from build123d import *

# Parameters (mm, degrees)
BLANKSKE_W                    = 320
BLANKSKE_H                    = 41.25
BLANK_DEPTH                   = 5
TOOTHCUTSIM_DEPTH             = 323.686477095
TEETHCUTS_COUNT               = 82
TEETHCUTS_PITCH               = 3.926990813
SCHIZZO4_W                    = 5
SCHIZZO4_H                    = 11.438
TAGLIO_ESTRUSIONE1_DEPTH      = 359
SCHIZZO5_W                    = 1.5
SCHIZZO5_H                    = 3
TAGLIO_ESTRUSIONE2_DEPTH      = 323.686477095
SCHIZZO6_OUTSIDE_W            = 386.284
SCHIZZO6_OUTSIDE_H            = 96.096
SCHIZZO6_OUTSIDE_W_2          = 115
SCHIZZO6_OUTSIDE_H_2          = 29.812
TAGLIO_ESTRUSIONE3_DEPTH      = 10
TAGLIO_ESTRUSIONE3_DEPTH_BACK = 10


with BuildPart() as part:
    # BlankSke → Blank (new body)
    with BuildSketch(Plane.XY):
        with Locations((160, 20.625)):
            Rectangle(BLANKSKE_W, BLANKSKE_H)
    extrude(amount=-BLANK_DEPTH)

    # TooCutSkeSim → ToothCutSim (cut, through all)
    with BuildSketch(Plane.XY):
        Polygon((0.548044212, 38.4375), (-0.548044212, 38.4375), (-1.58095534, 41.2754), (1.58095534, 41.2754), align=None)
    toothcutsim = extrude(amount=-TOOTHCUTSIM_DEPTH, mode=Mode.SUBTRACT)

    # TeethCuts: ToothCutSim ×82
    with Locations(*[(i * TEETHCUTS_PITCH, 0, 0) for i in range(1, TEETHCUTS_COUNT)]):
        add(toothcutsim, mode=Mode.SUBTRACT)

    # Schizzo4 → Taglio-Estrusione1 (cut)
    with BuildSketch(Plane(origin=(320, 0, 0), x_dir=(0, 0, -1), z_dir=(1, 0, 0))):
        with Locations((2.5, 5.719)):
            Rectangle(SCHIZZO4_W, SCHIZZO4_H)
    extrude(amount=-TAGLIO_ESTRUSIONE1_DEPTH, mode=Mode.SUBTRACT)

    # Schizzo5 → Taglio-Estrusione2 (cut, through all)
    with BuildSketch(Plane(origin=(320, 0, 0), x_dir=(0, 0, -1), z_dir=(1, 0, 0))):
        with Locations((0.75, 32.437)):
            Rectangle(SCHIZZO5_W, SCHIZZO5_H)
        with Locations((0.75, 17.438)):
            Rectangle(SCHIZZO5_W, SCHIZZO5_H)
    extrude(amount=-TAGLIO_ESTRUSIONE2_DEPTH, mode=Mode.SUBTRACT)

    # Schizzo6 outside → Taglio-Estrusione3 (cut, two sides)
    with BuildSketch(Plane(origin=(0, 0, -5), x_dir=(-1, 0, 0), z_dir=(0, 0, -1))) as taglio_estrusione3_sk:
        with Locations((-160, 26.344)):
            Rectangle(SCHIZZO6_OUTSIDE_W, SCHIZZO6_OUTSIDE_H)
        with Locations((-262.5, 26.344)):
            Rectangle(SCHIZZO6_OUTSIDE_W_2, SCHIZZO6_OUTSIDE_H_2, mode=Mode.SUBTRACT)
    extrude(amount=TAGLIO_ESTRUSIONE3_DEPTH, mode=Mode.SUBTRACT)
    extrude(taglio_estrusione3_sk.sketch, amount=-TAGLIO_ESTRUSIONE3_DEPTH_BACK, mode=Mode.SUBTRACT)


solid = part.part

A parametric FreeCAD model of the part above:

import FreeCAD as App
import Part
import Sketcher
from FreeCAD import Vector
Q = App.Units.Quantity


def add_polygon(sketch, points):
    """Adds a closed chain of lines whose ends are joined by coincident constraints."""
    first, n = sketch.GeometryCount, len(points)
    for a, b in zip(points, points[1:] + points[:1]):
        sketch.addGeometry(Part.LineSegment(App.Vector(*a, 0), App.Vector(*b, 0)), False)
    for i in range(n):
        sketch.addConstraint(Sketcher.Constraint("Coincident", first + i, 2, first + (i + 1) % n, 1))

doc = App.newDocument("Part")
params = doc.addObject("Spreadsheet::Sheet", "Params")
for row, (alias, value) in enumerate([
    ("sketch1_width", "320 mm"),
    ("sketch1_height", "41.25 mm"),
    ("pad1_length", "5 mm"),
    ("linearpattern_pitch", "3.926991 mm"),
    ("sketch3_height", "5 mm"),
    ("pocket2_length", "359 mm"),
    ("sketch4_width", "3 mm"),
    ("sketch4_height", "1.5 mm"),
    ("sketch5_width", "115 mm"),
], start=1):
    params.set(f"A{row}", alias)
    params.set(f"B{row}", "=" + value)
    params.setAlias(f"B{row}", alias)

body = doc.addObject("PartDesign::Body", "Body")

sketch1 = doc.addObject("Sketcher::SketchObject", "Sketch")
body.addObject(sketch1)
sketch1.AttachmentSupport = (doc.XY_Plane, [""])
sketch1.MapMode = "FlatFace"
add_polygon(sketch1, [(0, 41), (0, 0), (320, 0), (320, 41)])
sketch1.addConstraint([
    Sketcher.Constraint("Vertical", 0),
    Sketcher.Constraint("Horizontal", 1),
    Sketcher.Constraint("Vertical", 2),
    Sketcher.Constraint("Horizontal", 3),
    Sketcher.Constraint("Coincident", 0, 2, -1, 1),
    Sketcher.Constraint("DistanceX", 1, 1, 1, 2, Q("320 mm")),
    Sketcher.Constraint("DistanceY", 0, 2, 0, 1, Q("41.25 mm")),
])
sketch1.setExpression("Constraints[9]", "Params.sketch1_width")
sketch1.setExpression("Constraints[10]", "Params.sketch1_height")
pad1 = doc.addObject("PartDesign::Pad", "Pad")
body.addObject(pad1)
pad1.Profile = sketch1
pad1.setExpression("Length", "Params.pad1_length")
pad1.Reversed = True

sketch2 = doc.addObject("Sketcher::SketchObject", "Sketch001")
body.addObject(sketch2)
sketch2.AttachmentSupport = (doc.XY_Plane, [""])
sketch2.MapMode = "FlatFace"
add_polygon(sketch2, [(-0.5, 38.4), (0.5, 38.4), (1.6, 41.3), (-1.6, 41.3)])
sketch2.addConstraint([
    Sketcher.Constraint("Horizontal", 0),
    Sketcher.Constraint("Horizontal", 2),
    Sketcher.Constraint("Equal", 1, 3),
    Sketcher.Constraint("Angle", 1, Q("70 deg")),
    Sketcher.Constraint("DistanceX", 2, 2, 0, 2, Q("2.129 mm")),
    Sketcher.Constraint("DistanceX", 0, 1, 0, 2, Q("1.096088 mm")),
    Sketcher.Constraint("DistanceY", -1, 1, 0, 2, Q("38.4375 mm")),
    Sketcher.Constraint("DistanceX", -1, 1, 0, 2, Q("0.548044 mm")),
])
pocket1 = doc.addObject("PartDesign::Pocket", "Pocket")
body.addObject(pocket1)
pocket1.Profile = sketch2
pocket1.Type = "ThroughAll"
doc.recompute()

linearpattern = doc.addObject("PartDesign::LinearPattern", "LinearPattern")
body.addObject(linearpattern)
linearpattern.Originals = [pocket1]
linearpattern.Direction = (doc.X_Axis, [""])
linearpattern.Mode = "offset"
linearpattern.setExpression("Offset", "Params.linearpattern_pitch")
linearpattern.Occurrences = 82
body.Tip = linearpattern

sketch3 = doc.addObject("Sketcher::SketchObject", "Sketch002")
body.addObject(sketch3)
sketch3.AttachmentSupport = (doc.YZ_Plane, [""])
sketch3.MapMode = "FlatFace"
sketch3.AttachmentOffset = App.Placement(Vector(0, 0, 320), App.Rotation())
add_polygon(sketch3, [(11, 0), (0, 0), (0, -5), (11, -5)])
sketch3.addConstraint([
    Sketcher.Constraint("Horizontal", 0),
    Sketcher.Constraint("Vertical", 1),
    Sketcher.Constraint("Horizontal", 2),
    Sketcher.Constraint("Vertical", 3),
    Sketcher.Constraint("Coincident", 0, 2, -1, 1),
    Sketcher.Constraint("DistanceY", 1, 2, 1, 1, Q("5 mm")),
    Sketcher.Constraint("DistanceX", 0, 2, 0, 1, Q("11.438 mm")),
])
sketch3.setExpression("Constraints[9]", "Params.sketch3_height")
pocket2 = doc.addObject("PartDesign::Pocket", "Pocket001")
body.addObject(pocket2)
pocket2.Profile = sketch3
pocket2.setExpression("Length", "Params.pocket2_length")

sketch4 = doc.addObject("Sketcher::SketchObject", "Sketch003")
body.addObject(sketch4)
sketch4.AttachmentSupport = (doc.YZ_Plane, [""])
sketch4.MapMode = "FlatFace"
sketch4.AttachmentOffset = App.Placement(Vector(0, 0, 320), App.Rotation())
add_polygon(sketch4, [(33.9, 0), (30.9, 0), (30.9, -1.5), (33.9, -1.5)])
add_polygon(sketch4, [(18.9, 0), (15.9, 0), (15.9, -1.5), (18.9, -1.5)])
sketch4.addConstraint([
    Sketcher.Constraint("Horizontal", 0),
    Sketcher.Constraint("Vertical", 1),
    Sketcher.Constraint("Horizontal", 2),
    Sketcher.Constraint("Vertical", 3),
    Sketcher.Constraint("Horizontal", 4),
    Sketcher.Constraint("Vertical", 5),
    Sketcher.Constraint("Horizontal", 6),
    Sketcher.Constraint("Vertical", 7),
    Sketcher.Constraint("PointOnObject", 0, 2, -1),
    Sketcher.Constraint("PointOnObject", 4, 2, -1),
    Sketcher.Constraint("Horizontal", 2, 2, 5, 2),
    Sketcher.Constraint("Equal", 2, 4),
    Sketcher.Constraint("DistanceX", 0, 2, 0, 1, Q("3 mm")),
    Sketcher.Constraint("DistanceY", 1, 2, 1, 1, Q("1.5 mm")),
    Sketcher.Constraint("DistanceX", -1, 1, 0, 2, Q("30.937 mm")),
    Sketcher.Constraint("DistanceX", -1, 1, 4, 2, Q("15.938 mm")),
])
sketch4.setExpression("Constraints[20]", "Params.sketch4_width")
sketch4.setExpression("Constraints[21]", "Params.sketch4_height")
pocket3 = doc.addObject("PartDesign::Pocket", "Pocket002")
body.addObject(pocket3)
pocket3.Profile = sketch4
pocket3.Type = "ThroughAll"

sketch5 = doc.addObject("Sketcher::SketchObject", "Sketch004")
body.addObject(sketch5)
sketch5.AttachmentSupport = (doc.XY_Plane, [""])
sketch5.MapMode = "FlatFace"
sketch5.AttachmentOffset = App.Placement(Vector(0, 0, -5), App.Rotation())
add_polygon(sketch5, [(353, 74), (353, -22), (-33, -22), (-33, 74)])
add_polygon(sketch5, [(205, 11), (320, 11), (320, 41), (205, 41)])
sketch5.addConstraint([
    Sketcher.Constraint("Vertical", 0),
    Sketcher.Constraint("Horizontal", 1),
    Sketcher.Constraint("Vertical", 2),
    Sketcher.Constraint("Horizontal", 3),
    Sketcher.Constraint("Horizontal", 4),
    Sketcher.Constraint("Vertical", 5),
    Sketcher.Constraint("Horizontal", 6),
    Sketcher.Constraint("Vertical", 7),
    Sketcher.Constraint("DistanceX", 4, 1, 4, 2, Q("115 mm")),
    Sketcher.Constraint("DistanceX", -1, 1, 4, 2, Q("320 mm")),
    Sketcher.Constraint("DistanceX", 1, 2, 1, 1, Q("386.284 mm")),
    Sketcher.Constraint("DistanceY", 0, 2, 0, 1, Q("96.096 mm")),
    Sketcher.Constraint("DistanceY", 5, 1, 5, 2, Q("29.812 mm")),
    Sketcher.Constraint("DistanceY", -1, 1, 5, 2, Q("41.25 mm")),
    Sketcher.Constraint("DistanceX", -1, 1, 0, 2, Q("353.142 mm")),
    Sketcher.Constraint("DistanceY", 0, 2, -1, 1, Q("21.704 mm")),
])
sketch5.setExpression("Constraints[16]", "Params.sketch5_width")
pocket4 = doc.addObject("PartDesign::Pocket", "Pocket003")
body.addObject(pocket4)
pocket4.Profile = sketch5
pocket4.Type = "ThroughAll"
pocket4.Midplane = True

doc.recompute()
